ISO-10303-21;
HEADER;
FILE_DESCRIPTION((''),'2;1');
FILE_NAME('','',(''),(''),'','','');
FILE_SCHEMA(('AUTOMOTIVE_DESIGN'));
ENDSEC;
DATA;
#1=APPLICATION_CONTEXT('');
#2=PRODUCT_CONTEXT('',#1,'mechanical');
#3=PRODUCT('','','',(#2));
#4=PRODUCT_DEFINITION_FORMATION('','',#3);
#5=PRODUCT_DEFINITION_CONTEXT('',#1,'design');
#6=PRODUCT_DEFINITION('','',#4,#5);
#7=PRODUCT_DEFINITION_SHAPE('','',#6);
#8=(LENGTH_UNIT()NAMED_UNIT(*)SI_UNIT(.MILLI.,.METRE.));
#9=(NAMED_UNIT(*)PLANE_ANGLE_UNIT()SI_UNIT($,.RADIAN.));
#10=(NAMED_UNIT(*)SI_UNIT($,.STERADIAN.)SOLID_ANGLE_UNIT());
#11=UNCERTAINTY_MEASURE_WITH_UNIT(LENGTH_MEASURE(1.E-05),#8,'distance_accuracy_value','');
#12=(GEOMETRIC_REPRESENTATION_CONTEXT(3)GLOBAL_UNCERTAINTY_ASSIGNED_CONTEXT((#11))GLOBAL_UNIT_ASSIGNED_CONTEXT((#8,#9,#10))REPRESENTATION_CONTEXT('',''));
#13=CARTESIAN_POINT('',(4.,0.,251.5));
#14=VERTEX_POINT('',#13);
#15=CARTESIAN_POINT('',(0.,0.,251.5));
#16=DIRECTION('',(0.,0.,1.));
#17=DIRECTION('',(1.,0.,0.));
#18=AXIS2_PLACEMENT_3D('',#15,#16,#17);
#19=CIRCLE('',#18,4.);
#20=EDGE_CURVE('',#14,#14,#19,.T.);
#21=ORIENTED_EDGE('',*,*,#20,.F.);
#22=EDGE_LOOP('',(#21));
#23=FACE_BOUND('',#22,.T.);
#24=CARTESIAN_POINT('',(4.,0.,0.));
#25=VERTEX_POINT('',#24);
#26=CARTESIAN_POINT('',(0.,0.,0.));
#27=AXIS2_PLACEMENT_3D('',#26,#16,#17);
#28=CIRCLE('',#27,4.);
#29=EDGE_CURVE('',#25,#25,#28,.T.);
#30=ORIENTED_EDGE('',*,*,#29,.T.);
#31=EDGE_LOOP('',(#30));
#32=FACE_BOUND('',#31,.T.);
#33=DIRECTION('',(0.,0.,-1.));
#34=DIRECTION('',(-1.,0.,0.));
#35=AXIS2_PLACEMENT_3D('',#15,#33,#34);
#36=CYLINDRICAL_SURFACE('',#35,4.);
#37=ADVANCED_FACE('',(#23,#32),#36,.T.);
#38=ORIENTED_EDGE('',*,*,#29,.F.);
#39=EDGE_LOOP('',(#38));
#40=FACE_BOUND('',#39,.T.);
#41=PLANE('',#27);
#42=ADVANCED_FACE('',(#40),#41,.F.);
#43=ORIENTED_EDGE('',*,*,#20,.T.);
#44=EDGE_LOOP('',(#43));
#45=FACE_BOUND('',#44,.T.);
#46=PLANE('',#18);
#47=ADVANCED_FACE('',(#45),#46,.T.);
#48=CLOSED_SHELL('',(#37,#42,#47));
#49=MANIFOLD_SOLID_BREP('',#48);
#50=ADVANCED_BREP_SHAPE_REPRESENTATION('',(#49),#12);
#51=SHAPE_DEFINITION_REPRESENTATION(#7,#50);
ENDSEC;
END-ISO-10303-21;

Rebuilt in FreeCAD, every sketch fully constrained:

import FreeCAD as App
import Part
import Sketcher

doc = App.newDocument("Part")
body = doc.addObject("PartDesign::Body", "Body")

sketch1 = doc.addObject("Sketcher::SketchObject", "Sketch")
body.addObject(sketch1)
sketch1.AttachmentSupport = (doc.XY_Plane, [""])
sketch1.MapMode = "FlatFace"
sketch1.addGeometry(Part.Circle(App.Vector(0, 0, 0), App.Vector(0, 0, 1), 4), False)
sketch1.addConstraint(Sketcher.Constraint("Coincident", 0, 3, -1, 1))
sketch1.addConstraint(Sketcher.Constraint("Diameter", 0, 8.0))
pad1 = doc.addObject("PartDesign::Pad", "Pad")
body.addObject(pad1)
pad1.Profile = sketch1
pad1.Length = 251.5

doc.recompute()
